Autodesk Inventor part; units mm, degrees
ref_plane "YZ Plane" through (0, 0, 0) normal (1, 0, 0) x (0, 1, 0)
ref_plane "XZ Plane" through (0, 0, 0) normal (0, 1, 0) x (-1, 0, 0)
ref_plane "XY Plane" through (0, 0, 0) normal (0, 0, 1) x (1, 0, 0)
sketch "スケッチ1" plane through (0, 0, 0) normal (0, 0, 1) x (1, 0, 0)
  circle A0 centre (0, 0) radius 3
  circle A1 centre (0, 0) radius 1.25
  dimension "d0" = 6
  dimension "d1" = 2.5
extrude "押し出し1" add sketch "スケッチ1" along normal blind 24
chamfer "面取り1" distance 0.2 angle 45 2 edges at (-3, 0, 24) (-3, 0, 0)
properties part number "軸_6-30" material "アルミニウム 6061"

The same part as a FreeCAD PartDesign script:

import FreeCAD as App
import Part
import Sketcher
from FreeCAD import Vector
Q = App.Units.Quantity


def edges_at(feature, points):
    """Names of the edges that pass closest to the given points."""
    edges = feature.Shape.Edges
    near = lambda p: min(range(len(edges)), key=lambda i: edges[i].distToShape(Part.Vertex(*p))[0])
    return sorted({f"Edge{near(p) + 1}" for p in points})

doc = App.newDocument("Part")
params = doc.addObject("Spreadsheet::Sheet", "Params")
for row, (alias, value) in enumerate([
    ("sketch1_diameter", "6 mm"),
    ("sketch1_diameter2", "2.5 mm"),
    ("pad1_length", "24 mm"),
    ("chamfer_size", "0.2 mm"),
], start=1):
    params.set(f"A{row}", alias)
    params.set(f"B{row}", "=" + value)
    params.setAlias(f"B{row}", alias)

body = doc.addObject("PartDesign::Body", "Body")

sketch1 = doc.addObject("Sketcher::SketchObject", "Sketch")
body.addObject(sketch1)
sketch1.AttachmentSupport = (doc.XY_Plane, [""])
sketch1.MapMode = "FlatFace"
sketch1.addGeometry(Part.Circle(Vector(0, 0, 0), Vector(0, 0, 1), 3), False)
sketch1.addGeometry(Part.Circle(Vector(0, 0, 0), Vector(0, 0, 1), 1.2), False)
sketch1.addConstraint(Sketcher.Constraint("Coincident", 0, 3, -1, 1))
sketch1.addConstraint(Sketcher.Constraint("Coincident", 1, 3, -1, 1))
sketch1.addConstraint(Sketcher.Constraint("Diameter", 0, Q("6 mm")))
sketch1.addConstraint(Sketcher.Constraint("Diameter", 1, Q("2.5 mm")))
sketch1.setExpression("Constraints[2]", "Params.sketch1_diameter")
sketch1.setExpression("Constraints[3]", "Params.sketch1_diameter2")
pad1 = doc.addObject("PartDesign::Pad", "Pad")
body.addObject(pad1)
pad1.Profile = sketch1
pad1.setExpression("Length", "Params.pad1_length")
doc.recompute()

chamfer = doc.addObject("PartDesign::Chamfer", "Chamfer")
body.addObject(chamfer)
chamfer.Base = (pad1, edges_at(pad1, [(-3, 0, 24), (-3, 0, 0)]))
chamfer.setExpression("Size", "Params.chamfer_size")

doc.recompute()
